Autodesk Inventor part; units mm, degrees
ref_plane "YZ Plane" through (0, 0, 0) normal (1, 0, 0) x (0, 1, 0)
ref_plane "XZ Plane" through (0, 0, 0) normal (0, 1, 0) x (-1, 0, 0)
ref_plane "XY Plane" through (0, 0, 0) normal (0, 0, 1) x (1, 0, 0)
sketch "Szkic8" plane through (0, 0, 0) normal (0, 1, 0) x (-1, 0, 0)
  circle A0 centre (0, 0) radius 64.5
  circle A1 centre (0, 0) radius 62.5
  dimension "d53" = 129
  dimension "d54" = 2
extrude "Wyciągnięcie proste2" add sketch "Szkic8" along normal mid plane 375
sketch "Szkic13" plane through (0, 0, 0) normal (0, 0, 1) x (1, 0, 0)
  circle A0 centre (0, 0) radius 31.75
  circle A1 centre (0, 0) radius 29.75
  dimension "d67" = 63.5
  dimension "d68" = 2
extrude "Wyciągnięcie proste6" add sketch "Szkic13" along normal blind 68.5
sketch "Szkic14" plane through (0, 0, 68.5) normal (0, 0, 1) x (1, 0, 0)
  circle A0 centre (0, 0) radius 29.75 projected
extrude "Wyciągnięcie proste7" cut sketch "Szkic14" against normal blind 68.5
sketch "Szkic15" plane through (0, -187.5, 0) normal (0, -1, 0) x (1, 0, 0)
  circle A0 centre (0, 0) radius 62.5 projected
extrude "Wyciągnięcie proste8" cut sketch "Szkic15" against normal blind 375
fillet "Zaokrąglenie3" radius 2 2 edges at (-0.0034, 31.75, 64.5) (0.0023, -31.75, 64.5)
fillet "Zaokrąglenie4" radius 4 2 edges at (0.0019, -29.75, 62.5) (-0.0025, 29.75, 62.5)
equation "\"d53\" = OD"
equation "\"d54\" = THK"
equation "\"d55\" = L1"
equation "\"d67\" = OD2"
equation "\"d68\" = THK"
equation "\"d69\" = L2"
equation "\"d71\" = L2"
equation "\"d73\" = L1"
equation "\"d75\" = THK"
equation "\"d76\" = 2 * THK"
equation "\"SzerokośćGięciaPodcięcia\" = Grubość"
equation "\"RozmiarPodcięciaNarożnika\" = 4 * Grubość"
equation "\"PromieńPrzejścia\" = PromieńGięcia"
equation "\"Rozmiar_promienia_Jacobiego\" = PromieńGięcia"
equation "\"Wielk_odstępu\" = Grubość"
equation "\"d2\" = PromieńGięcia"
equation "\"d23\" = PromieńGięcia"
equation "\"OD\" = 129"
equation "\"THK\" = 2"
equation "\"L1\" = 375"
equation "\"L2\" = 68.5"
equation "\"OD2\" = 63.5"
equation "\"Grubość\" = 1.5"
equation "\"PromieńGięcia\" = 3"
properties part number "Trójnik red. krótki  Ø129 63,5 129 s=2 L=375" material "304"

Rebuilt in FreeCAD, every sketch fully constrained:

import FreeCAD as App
import Part
import Sketcher
Q = App.Units.Quantity


def edges_at(feature, points):
    """Names of the edges that pass closest to the given points."""
    edges = feature.Shape.Edges
    near = lambda p: min(range(len(edges)), key=lambda i: edges[i].distToShape(Part.Vertex(*p))[0])
    return sorted({f"Edge{near(p) + 1}" for p in points})

doc = App.newDocument("Part")
body = doc.addObject("PartDesign::Body", "Body")

# Sketch on XZ plane
sketch1 = body.newObject("Sketcher::SketchObject", "Sketch")
sketch1.AttachmentSupport = (doc.getObject("XZ_Plane"), [""])
sketch1.MapMode = "FlatFace"
sketch1.addGeometry(Part.Circle(App.Vector(0, 0, 0), App.Vector(0, 0, 1), 64.5), False)
sketch1.addGeometry(Part.Circle(App.Vector(0, 0, 0), App.Vector(0, 0, 1), 62.5), False)
sketch1.addConstraint(Sketcher.Constraint("Coincident", 0, 3, -1, 1))
sketch1.addConstraint(Sketcher.Constraint("Coincident", 1, 3, -1, 1))
sketch1.addConstraint(Sketcher.Constraint("Diameter", 0, Q("129 mm")))
sketch1.addConstraint(Sketcher.Constraint("Diameter", 1, Q("125 mm")))
pad1 = body.newObject("PartDesign::Pad", "Pad")
pad1.Profile = sketch1
pad1.Length = 375
pad1.Midplane = True

# Sketch on XY plane
sketch2 = body.newObject("Sketcher::SketchObject", "Sketch001")
sketch2.AttachmentSupport = (doc.getObject("XY_Plane"), [""])
sketch2.MapMode = "FlatFace"
sketch2.addGeometry(Part.Circle(App.Vector(0, 0, 0), App.Vector(0, 0, 1), 31.75), False)
sketch2.addGeometry(Part.Circle(App.Vector(0, 0, 0), App.Vector(0, 0, 1), 29.75), False)
sketch2.addConstraint(Sketcher.Constraint("Coincident", 0, 3, -1, 1))
sketch2.addConstraint(Sketcher.Constraint("Coincident", 1, 3, -1, 1))
sketch2.addConstraint(Sketcher.Constraint("Diameter", 0, Q("63.5 mm")))
sketch2.addConstraint(Sketcher.Constraint("Diameter", 1, Q("59.5 mm")))
pad2 = body.newObject("PartDesign::Pad", "Pad001")
pad2.Profile = sketch2
pad2.Length = 68.5

# Sketch on XY plane
sketch3 = body.newObject("Sketcher::SketchObject", "Sketch002")
sketch3.AttachmentSupport = (doc.getObject("XY_Plane"), [""])
sketch3.MapMode = "FlatFace"
sketch3.AttachmentOffset = App.Placement(App.Vector(0, 0, 68.5), App.Rotation())
sketch3.addGeometry(Part.Circle(App.Vector(0, 0, 0), App.Vector(0, 0, 1), 29.75), False)
sketch3.addConstraint(Sketcher.Constraint("Coincident", 0, 3, -1, 1))
sketch3.addConstraint(Sketcher.Constraint("Diameter", 0, Q("59.5 mm")))
pocket1 = body.newObject("PartDesign::Pocket", "Pocket")
pocket1.Profile = sketch3
pocket1.Length = 68.5

# Sketch on XZ plane
sketch4 = body.newObject("Sketcher::SketchObject", "Sketch003")
sketch4.AttachmentSupport = (doc.getObject("XZ_Plane"), [""])
sketch4.MapMode = "FlatFace"
sketch4.AttachmentOffset = App.Placement(App.Vector(0, 0, 187.5), App.Rotation())
sketch4.addGeometry(Part.Circle(App.Vector(0, 0, 0), App.Vector(0, 0, 1), 62.5), False)
sketch4.addConstraint(Sketcher.Constraint("Coincident", 0, 3, -1, 1))
sketch4.addConstraint(Sketcher.Constraint("Diameter", 0, Q("125 mm")))
pocket2 = body.newObject("PartDesign::Pocket", "Pocket001")
pocket2.Profile = sketch4
pocket2.Length = 375
doc.recompute()

fillet = body.newObject("PartDesign::Fillet", "Fillet")
fillet.Base = (pocket2, edges_at(pocket2, [(-0.003, 31.75, 64.5), (0.002, -31.75, 64.5)]))
fillet.Radius = 2
doc.recompute()

fillet2 = body.newObject("PartDesign::Fillet", "Fillet001")
fillet2.Base = (fillet, edges_at(fillet, [(0.002, -29.75, 62.5), (-0.003, 29.75, 62.5)]))
fillet2.Radius = 4

doc.recompute()
